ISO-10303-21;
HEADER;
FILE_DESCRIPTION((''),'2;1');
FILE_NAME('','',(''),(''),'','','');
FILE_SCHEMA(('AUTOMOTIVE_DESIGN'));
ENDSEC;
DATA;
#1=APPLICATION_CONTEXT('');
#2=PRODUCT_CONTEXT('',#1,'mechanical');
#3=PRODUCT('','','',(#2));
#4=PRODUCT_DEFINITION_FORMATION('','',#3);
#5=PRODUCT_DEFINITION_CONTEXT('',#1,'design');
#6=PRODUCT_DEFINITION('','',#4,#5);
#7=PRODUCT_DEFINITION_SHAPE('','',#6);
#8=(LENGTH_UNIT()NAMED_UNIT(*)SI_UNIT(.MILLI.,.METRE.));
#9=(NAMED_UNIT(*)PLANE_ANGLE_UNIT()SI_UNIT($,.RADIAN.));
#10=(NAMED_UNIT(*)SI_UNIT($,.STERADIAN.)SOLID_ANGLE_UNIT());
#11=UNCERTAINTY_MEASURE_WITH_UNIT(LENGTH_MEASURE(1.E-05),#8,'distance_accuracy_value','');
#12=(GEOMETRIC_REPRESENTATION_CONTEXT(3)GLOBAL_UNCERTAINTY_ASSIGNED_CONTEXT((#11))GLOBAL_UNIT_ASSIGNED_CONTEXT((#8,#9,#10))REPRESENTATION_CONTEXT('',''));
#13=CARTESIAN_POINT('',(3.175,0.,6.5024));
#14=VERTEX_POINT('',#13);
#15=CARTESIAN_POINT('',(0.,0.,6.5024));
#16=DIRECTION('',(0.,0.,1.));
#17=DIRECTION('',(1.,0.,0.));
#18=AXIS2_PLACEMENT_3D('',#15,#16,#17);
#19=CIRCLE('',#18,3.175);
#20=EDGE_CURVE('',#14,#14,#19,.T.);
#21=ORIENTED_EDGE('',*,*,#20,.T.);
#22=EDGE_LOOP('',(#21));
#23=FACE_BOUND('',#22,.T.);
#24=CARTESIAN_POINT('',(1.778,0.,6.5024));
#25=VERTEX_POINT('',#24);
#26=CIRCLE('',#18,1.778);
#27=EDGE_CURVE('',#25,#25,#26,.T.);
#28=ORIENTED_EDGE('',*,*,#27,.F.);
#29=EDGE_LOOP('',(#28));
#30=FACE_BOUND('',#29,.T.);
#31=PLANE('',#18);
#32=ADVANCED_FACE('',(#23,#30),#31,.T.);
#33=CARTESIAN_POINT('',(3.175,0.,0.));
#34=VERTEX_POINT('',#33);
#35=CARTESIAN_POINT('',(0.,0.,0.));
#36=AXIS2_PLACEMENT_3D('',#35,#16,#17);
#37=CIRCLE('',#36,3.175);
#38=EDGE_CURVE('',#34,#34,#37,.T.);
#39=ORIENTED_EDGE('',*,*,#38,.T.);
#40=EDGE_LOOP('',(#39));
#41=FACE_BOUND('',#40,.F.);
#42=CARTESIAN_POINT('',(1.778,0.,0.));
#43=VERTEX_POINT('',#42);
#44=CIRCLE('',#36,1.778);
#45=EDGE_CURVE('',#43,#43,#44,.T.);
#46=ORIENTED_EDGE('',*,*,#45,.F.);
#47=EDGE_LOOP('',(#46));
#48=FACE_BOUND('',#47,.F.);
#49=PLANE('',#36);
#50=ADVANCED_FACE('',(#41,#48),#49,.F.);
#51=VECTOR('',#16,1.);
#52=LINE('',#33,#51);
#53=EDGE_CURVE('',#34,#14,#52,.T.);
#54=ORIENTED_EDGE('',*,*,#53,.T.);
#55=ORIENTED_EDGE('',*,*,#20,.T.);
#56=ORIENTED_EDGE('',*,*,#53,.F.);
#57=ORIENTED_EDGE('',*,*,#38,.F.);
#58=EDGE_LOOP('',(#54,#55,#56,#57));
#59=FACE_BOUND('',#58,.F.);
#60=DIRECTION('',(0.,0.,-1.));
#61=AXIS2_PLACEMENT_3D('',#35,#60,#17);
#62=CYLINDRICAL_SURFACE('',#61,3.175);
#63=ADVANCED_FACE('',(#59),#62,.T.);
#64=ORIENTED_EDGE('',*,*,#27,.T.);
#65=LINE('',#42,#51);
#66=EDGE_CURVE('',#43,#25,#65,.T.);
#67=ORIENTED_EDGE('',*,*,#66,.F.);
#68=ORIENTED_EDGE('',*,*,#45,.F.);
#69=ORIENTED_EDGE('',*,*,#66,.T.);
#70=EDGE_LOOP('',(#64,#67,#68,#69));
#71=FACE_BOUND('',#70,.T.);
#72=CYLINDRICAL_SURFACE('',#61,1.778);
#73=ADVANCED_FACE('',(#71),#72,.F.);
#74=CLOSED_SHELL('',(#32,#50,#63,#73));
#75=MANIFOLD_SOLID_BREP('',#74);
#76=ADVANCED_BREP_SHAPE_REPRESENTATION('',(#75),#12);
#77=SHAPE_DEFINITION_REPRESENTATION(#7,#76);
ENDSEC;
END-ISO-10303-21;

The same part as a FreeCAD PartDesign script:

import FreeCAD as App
import Part
import Sketcher

V = App.Vector
Q = App.Units.Quantity

doc = App.newDocument("Part")
body = doc.addObject("PartDesign::Body", "Body")

sketch1 = body.newObject("Sketcher::SketchObject", "Sketch")
sketch1.AttachmentSupport = (doc.getObject("XY_Plane"), [""])
sketch1.MapMode = "FlatFace"
sketch1.addGeometry([
    Part.Circle(V(0, 0, 0), V(0, 0, 1), 3.2),
    Part.Circle(V(0, 0, 0), V(0, 0, 1), 1.8),
], False)
sketch1.addConstraint([
    Sketcher.Constraint("Coincident", 0, 3, -1, 1),
    Sketcher.Constraint("Coincident", 1, 3, -1, 1),
    Sketcher.Constraint("Diameter", 0, Q("0.25 in")),
    Sketcher.Constraint("Diameter", 1, Q("0.14 in")),
])
pad1 = body.newObject("PartDesign::Pad", "Pad")
pad1.Profile = sketch1
pad1.Length = Q("0.256 in")

doc.recompute()
